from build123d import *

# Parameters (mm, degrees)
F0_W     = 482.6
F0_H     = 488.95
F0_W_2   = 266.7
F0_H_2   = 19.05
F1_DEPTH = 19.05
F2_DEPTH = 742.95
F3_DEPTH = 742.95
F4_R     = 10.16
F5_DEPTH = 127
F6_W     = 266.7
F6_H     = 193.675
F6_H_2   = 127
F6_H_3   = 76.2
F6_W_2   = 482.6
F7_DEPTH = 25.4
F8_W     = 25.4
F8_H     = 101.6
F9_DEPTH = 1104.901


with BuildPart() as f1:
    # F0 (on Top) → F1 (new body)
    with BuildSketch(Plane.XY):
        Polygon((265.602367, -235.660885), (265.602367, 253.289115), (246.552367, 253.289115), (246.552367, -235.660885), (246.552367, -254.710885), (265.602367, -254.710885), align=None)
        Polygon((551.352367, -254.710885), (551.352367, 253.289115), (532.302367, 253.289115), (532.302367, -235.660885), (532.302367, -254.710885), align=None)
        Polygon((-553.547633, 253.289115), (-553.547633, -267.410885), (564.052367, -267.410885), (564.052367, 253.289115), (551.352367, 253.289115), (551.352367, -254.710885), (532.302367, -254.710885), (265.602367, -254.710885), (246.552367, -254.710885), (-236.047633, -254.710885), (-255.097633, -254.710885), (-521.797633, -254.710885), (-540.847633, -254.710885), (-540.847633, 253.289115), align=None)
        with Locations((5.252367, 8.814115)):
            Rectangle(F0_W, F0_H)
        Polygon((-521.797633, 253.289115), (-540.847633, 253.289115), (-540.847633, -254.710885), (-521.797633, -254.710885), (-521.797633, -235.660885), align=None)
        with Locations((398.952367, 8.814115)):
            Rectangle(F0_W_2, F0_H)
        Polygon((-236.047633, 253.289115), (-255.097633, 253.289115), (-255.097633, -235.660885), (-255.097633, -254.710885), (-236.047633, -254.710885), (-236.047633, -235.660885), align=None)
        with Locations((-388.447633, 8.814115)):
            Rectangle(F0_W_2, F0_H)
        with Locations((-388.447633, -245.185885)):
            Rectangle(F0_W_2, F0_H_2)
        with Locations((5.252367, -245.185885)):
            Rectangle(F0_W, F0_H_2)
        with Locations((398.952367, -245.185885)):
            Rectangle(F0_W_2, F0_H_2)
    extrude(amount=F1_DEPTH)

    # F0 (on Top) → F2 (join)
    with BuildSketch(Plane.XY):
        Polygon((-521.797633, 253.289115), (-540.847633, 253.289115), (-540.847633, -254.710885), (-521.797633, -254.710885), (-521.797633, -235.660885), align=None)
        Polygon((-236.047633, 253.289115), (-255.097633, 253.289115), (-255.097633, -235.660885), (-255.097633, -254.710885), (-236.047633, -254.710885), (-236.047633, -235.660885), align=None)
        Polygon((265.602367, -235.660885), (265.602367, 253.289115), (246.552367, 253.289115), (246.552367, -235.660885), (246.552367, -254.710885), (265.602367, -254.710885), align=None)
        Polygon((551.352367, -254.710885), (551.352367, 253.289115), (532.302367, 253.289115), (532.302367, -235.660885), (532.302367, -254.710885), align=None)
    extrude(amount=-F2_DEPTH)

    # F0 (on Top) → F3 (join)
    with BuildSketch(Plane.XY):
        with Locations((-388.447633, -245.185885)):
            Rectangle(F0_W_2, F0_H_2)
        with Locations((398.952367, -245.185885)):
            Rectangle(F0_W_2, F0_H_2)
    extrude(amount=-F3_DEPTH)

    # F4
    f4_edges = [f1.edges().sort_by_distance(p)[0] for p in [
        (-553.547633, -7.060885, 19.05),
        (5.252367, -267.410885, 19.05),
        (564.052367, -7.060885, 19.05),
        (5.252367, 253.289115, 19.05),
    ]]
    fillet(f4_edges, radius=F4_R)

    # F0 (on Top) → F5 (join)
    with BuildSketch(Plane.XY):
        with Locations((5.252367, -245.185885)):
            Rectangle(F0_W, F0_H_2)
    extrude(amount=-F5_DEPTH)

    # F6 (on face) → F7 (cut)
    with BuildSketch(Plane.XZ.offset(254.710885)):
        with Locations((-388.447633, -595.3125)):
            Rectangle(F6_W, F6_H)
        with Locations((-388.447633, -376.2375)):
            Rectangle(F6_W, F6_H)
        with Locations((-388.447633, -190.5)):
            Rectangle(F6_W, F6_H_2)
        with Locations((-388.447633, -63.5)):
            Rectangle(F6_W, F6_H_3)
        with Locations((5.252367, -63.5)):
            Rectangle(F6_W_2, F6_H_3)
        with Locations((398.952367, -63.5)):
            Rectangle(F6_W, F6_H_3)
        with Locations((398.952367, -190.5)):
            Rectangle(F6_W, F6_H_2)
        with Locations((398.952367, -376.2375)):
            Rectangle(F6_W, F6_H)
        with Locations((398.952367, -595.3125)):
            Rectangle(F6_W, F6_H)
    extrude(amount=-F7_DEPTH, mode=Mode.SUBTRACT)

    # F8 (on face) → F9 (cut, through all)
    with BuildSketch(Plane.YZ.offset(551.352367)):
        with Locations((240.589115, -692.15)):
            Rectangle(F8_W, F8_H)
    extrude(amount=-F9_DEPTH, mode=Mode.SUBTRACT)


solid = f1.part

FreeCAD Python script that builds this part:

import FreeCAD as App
import Part
import Sketcher

V = App.Vector
Q = App.Units.Quantity


def edges_at(feature, points):
    """Names of the edges that pass closest to the given points."""
    edges = feature.Shape.Edges
    near = lambda p: min(range(len(edges)), key=lambda i: edges[i].distToShape(Part.Vertex(*p))[0])
    return sorted({f"Edge{near(p) + 1}" for p in points})


def add_polygon(sketch, points):
    """Adds a closed chain of lines whose ends are joined by coincident constraints."""
    first, n = sketch.GeometryCount, len(points)
    for a, b in zip(points, points[1:] + points[:1]):
        sketch.addGeometry(Part.LineSegment(App.Vector(*a, 0), App.Vector(*b, 0)), False)
    for i in range(n):
        sketch.addConstraint(Sketcher.Constraint("Coincident", first + i, 2, first + (i + 1) % n, 1))

doc = App.newDocument("Part")
body = doc.addObject("PartDesign::Body", "Body")

# Sketch on XY plane
sketch1 = body.newObject("Sketcher::SketchObject", "Sketch")
sketch1.AttachmentSupport = (doc.getObject("XY_Plane"), [""])
sketch1.MapMode = "FlatFace"
add_polygon(sketch1, [(-554, 253), (-554, -267), (564, -267), (564, 253)])  # lines 0-3
sketch1.addConstraint(Sketcher.Constraint("Vertical", 0))
sketch1.addConstraint(Sketcher.Constraint("Horizontal", 1))
sketch1.addConstraint(Sketcher.Constraint("Vertical", 2))
sketch1.addConstraint(Sketcher.Constraint("Horizontal", 3))
sketch1.addConstraint(Sketcher.Constraint("DistanceX", 1, 1, 1, 2, Q("44 in")))
sketch1.addConstraint(Sketcher.Constraint("DistanceY", 0, 2, 0, 1, Q("20.5 in")))
sketch1.addConstraint(Sketcher.Constraint("DistanceX", 0, 2, -1, 1, Q("553.547633 mm")))
sketch1.addConstraint(Sketcher.Constraint("DistanceY", 0, 2, -1, 1, Q("267.410885 mm")))
pad1 = body.newObject("PartDesign::Pad", "Pad")
pad1.Profile = sketch1
pad1.Length = Q("0.75 in")

# Sketch on XY plane
sketch2 = body.newObject("Sketcher::SketchObject", "Sketch001")
sketch2.AttachmentSupport = (doc.getObject("XY_Plane"), [""])
sketch2.MapMode = "FlatFace"
add_polygon(sketch2, [(-522, 253), (-541, 253), (-541, -255), (-522, -255)])  # lines 0-3
add_polygon(sketch2, [(-236, 253), (-255, 253), (-255, -255), (-236, -255)])  # lines 4-7
add_polygon(sketch2, [(266, 253), (247, 253), (247, -255), (266, -255)])  # lines 8-11
add_polygon(sketch2, [(551, -255), (551, 253), (532, 253), (532, -255)])  # lines 12-15
sketch2.addConstraint(Sketcher.Constraint("Horizontal", 0))
sketch2.addConstraint(Sketcher.Constraint("Vertical", 1))
sketch2.addConstraint(Sketcher.Constraint("Horizontal", 2))
sketch2.addConstraint(Sketcher.Constraint("Vertical", 3))
sketch2.addConstraint(Sketcher.Constraint("Horizontal", 4))
sketch2.addConstraint(Sketcher.Constraint("Vertical", 5))
sketch2.addConstraint(Sketcher.Constraint("Horizontal", 6))
sketch2.addConstraint(Sketcher.Constraint("Vertical", 7))
sketch2.addConstraint(Sketcher.Constraint("Horizontal", 8))
sketch2.addConstraint(Sketcher.Constraint("Vertical", 9))
sketch2.addConstraint(Sketcher.Constraint("Horizontal", 10))
sketch2.addConstraint(Sketcher.Constraint("Vertical", 11))
sketch2.addConstraint(Sketcher.Constraint("Vertical", 12))
sketch2.addConstraint(Sketcher.Constraint("Horizontal", 13))
sketch2.addConstraint(Sketcher.Constraint("Vertical", 14))
sketch2.addConstraint(Sketcher.Constraint("Horizontal", 15))
sketch2.addConstraint(Sketcher.Constraint("Horizontal", 3, 2, 4, 2))
sketch2.addConstraint(Sketcher.Constraint("Horizontal", 2, 2, 5, 2))
sketch2.addConstraint(Sketcher.Constraint("Horizontal", 7, 2, 8, 2))
sketch2.addConstraint(Sketcher.Constraint("Horizontal", 6, 2, 9, 2))
sketch2.addConstraint(Sketcher.Constraint("Horizontal", 11, 2, 12, 2))
sketch2.addConstraint(Sketcher.Constraint("Horizontal", 10, 2, 14, 2))
sketch2.addConstraint(Sketcher.Constraint("Equal", 2, 4))
sketch2.addConstraint(Sketcher.Constraint("Equal", 6, 8))
sketch2.addConstraint(Sketcher.Constraint("Equal", 10, 13))
sketch2.addConstraint(Sketcher.Constraint("DistanceY", 1, 2, 1, 1, Q("20 in")))
sketch2.addConstraint(Sketcher.Constraint("DistanceX", 1, 2, 6, 2, Q("12 in")))
sketch2.addConstraint(Sketcher.Constraint("DistanceX", 7, 2, 8, 2, Q("19 in")))
sketch2.addConstraint(Sketcher.Constraint("DistanceX", 8, 2, 12, 2, Q("12 in")))
sketch2.addConstraint(Sketcher.Constraint("DistanceX", 0, 2, 0, 1, Q("0.75 in")))
sketch2.addConstraint(Sketcher.Constraint("DistanceX", 0, 2, -1, 1, Q("540.847633 mm")))
sketch2.addConstraint(Sketcher.Constraint("DistanceY", -1, 1, 0, 2, Q("253.289115 mm")))
pad2 = body.newObject("PartDesign::Pad", "Pad001")
pad2.Profile = sketch2
pad2.Length = Q("29.25 in")
pad2.Reversed = True

# Sketch on XY plane
sketch3 = body.newObject("Sketcher::SketchObject", "Sketch002")
sketch3.AttachmentSupport = (doc.getObject("XY_Plane"), [""])
sketch3.MapMode = "FlatFace"
add_polygon(sketch3, [(-522, -236), (-522, -255), (-255, -255), (-255, -236)])  # lines 0-3
add_polygon(sketch3, [(266, -236), (266, -255), (532, -255), (532, -236)])  # lines 4-7
sketch3.addConstraint(Sketcher.Constraint("Vertical", 0))
sketch3.addConstraint(Sketcher.Constraint("Horizontal", 1))
sketch3.addConstraint(Sketcher.Constraint("Vertical", 2))
sketch3.addConstraint(Sketcher.Constraint("Horizontal", 3))
sketch3.addConstraint(Sketcher.Constraint("Vertical", 4))
sketch3.addConstraint(Sketcher.Constraint("Horizontal", 5))
sketch3.addConstraint(Sketcher.Constraint("Vertical", 6))
sketch3.addConstraint(Sketcher.Constraint("Horizontal", 7))
sketch3.addConstraint(Sketcher.Constraint("Horizontal", 1, 2, 4, 2))
sketch3.addConstraint(Sketcher.Constraint("Horizontal", 3, 2, 6, 2))
sketch3.addConstraint(Sketcher.Constraint("Equal", 3, 5))
sketch3.addConstraint(Sketcher.Constraint("DistanceX", 1, 1, 1, 2, Q("10.5 in")))
sketch3.addConstraint(Sketcher.Constraint("DistanceX", 0, 2, 4, 2, Q("31 in")))
sketch3.addConstraint(Sketcher.Constraint("DistanceY", 0, 2, 0, 1, Q("0.75 in")))
sketch3.addConstraint(Sketcher.Constraint("DistanceX", 0, 2, -1, 1, Q("521.797633 mm")))
sketch3.addConstraint(Sketcher.Constraint("DistanceY", 0, 2, -1, 1, Q("254.710885 mm")))
pad3 = body.newObject("PartDesign::Pad", "Pad002")
pad3.Profile = sketch3
pad3.Length = Q("29.25 in")
pad3.Reversed = True
doc.recompute()

fillet = body.newObject("PartDesign::Fillet", "Fillet")
fillet.Base = (pad3, edges_at(pad3, [
    (-553.548, -7.061, 19.05),
    (5.252, -267.411, 19.05),
    (564.052, -7.061, 19.05),
    (5.252, 253.289, 19.05),
]))
fillet.Radius = Q("0.4 in")

# Sketch on XY plane
sketch4 = body.newObject("Sketcher::SketchObject", "Sketch003")
sketch4.AttachmentSupport = (doc.getObject("XY_Plane"), [""])
sketch4.MapMode = "FlatFace"
add_polygon(sketch4, [(-236, -236), (-236, -255), (247, -255), (247, -236)])  # lines 0-3
sketch4.addConstraint(Sketcher.Constraint("Vertical", 0))
sketch4.addConstraint(Sketcher.Constraint("Horizontal", 1))
sketch4.addConstraint(Sketcher.Constraint("Vertical", 2))
sketch4.addConstraint(Sketcher.Constraint("Horizontal", 3))
sketch4.addConstraint(Sketcher.Constraint("DistanceX", 1, 1, 1, 2, Q("19 in")))
sketch4.addConstraint(Sketcher.Constraint("DistanceY", 0, 2, 0, 1, Q("0.75 in")))
sketch4.addConstraint(Sketcher.Constraint("DistanceX", 0, 2, -1, 1, Q("236.047633 mm")))
sketch4.addConstraint(Sketcher.Constraint("DistanceY", 0, 2, -1, 1, Q("254.710885 mm")))
pad4 = body.newObject("PartDesign::Pad", "Pad003")
pad4.Profile = sketch4
pad4.Length = Q("5 in")
pad4.Reversed = True

# Sketch on XZ plane
sketch5 = body.newObject("Sketcher::SketchObject", "Sketch004")
sketch5.AttachmentSupport = (doc.getObject("XZ_Plane"), [""])
sketch5.MapMode = "FlatFace"
sketch5.AttachmentOffset = App.Placement(V(0, 0, 254.710885), App.Rotation())
add_polygon(sketch5, [(-522, -498), (-522, -692), (-255, -692), (-255, -498)])  # lines 0-3
add_polygon(sketch5, [(-522, -279), (-522, -473), (-255, -473), (-255, -279)])  # lines 4-7
add_polygon(sketch5, [(-522, -127), (-522, -254), (-255, -254), (-255, -127)])  # lines 8-11
add_polygon(sketch5, [(-522, -25), (-522, -102), (-255, -102), (-255, -25)])  # lines 12-15
add_polygon(sketch5, [(-236, -25), (-236, -102), (247, -102), (247, -25)])  # lines 16-19
add_polygon(sketch5, [(266, -25), (266, -102), (532, -102), (532, -25)])  # lines 20-23
add_polygon(sketch5, [(266, -127), (266, -254), (532, -254), (532, -127)])  # lines 24-27
add_polygon(sketch5, [(266, -279), (266, -473), (532, -473), (532, -279)])  # lines 28-31
add_polygon(sketch5, [(266, -498), (266, -692), (532, -692), (532, -498)])  # lines 32-35
sketch5.addConstraint(Sketcher.Constraint("Vertical", 0))
sketch5.addConstraint(Sketcher.Constraint("Horizontal", 1))
sketch5.addConstraint(Sketcher.Constraint("Vertical", 2))
sketch5.addConstraint(Sketcher.Constraint("Horizontal", 3))
sketch5.addConstraint(Sketcher.Constraint("Vertical", 4))
sketch5.addConstraint(Sketcher.Constraint("Horizontal", 5))
sketch5.addConstraint(Sketcher.Constraint("Vertical", 6))
sketch5.addConstraint(Sketcher.Constraint("Horizontal", 7))
sketch5.addConstraint(Sketcher.Constraint("Vertical", 8))
sketch5.addConstraint(Sketcher.Constraint("Horizontal", 9))
sketch5.addConstraint(Sketcher.Constraint("Vertical", 10))
sketch5.addConstraint(Sketcher.Constraint("Horizontal", 11))
sketch5.addConstraint(Sketcher.Constraint("Vertical", 12))
sketch5.addConstraint(Sketcher.Constraint("Horizontal", 13))
sketch5.addConstraint(Sketcher.Constraint("Vertical", 14))
sketch5.addConstraint(Sketcher.Constraint("Horizontal", 15))
sketch5.addConstraint(Sketcher.Constraint("Vertical", 16))
sketch5.addConstraint(Sketcher.Constraint("Horizontal", 17))
sketch5.addConstraint(Sketcher.Constraint("Vertical", 18))
sketch5.addConstraint(Sketcher.Constraint("Horizontal", 19))
sketch5.addConstraint(Sketcher.Constraint("Vertical", 20))
sketch5.addConstraint(Sketcher.Constraint("Horizontal", 21))
sketch5.addConstraint(Sketcher.Constraint("Vertical", 22))
sketch5.addConstraint(Sketcher.Constraint("Horizontal", 23))
sketch5.addConstraint(Sketcher.Constraint("Vertical", 24))
sketch5.addConstraint(Sketcher.Constraint("Horizontal", 25))
sketch5.addConstraint(Sketcher.Constraint("Vertical", 26))
sketch5.addConstraint(Sketcher.Constraint("Horizontal", 27))
sketch5.addConstraint(Sketcher.Constraint("Vertical", 28))
sketch5.addConstraint(Sketcher.Constraint("Horizontal", 29))
sketch5.addConstraint(Sketcher.Constraint("Vertical", 30))
sketch5.addConstraint(Sketcher.Constraint("Horizontal", 31))
sketch5.addConstraint(Sketcher.Constraint("Vertical", 32))
sketch5.addConstraint(Sketcher.Constraint("Horizontal", 33))
sketch5.addConstraint(Sketcher.Constraint("Vertical", 34))
sketch5.addConstraint(Sketcher.Constraint("Horizontal", 35))
sketch5.addConstraint(Sketcher.Constraint("Horizontal", 13, 2, 16, 2))
sketch5.addConstraint(Sketcher.Constraint("Horizontal", 15, 2, 18, 2))
sketch5.addConstraint(Sketcher.Constraint("Horizontal", 17, 2, 20, 2))
sketch5.addConstraint(Sketcher.Constraint("Horizontal", 19, 2, 22, 2))
sketch5.addConstraint(Sketcher.Constraint("Horizontal", 9, 2, 24, 2))
sketch5.addConstraint(Sketcher.Constraint("Horizontal", 11, 2, 26, 2))
sketch5.addConstraint(Sketcher.Constraint("Horizontal", 5, 2, 28, 2))
sketch5.addConstraint(Sketcher.Constraint("Horizontal", 7, 2, 30, 2))
sketch5.addConstraint(Sketcher.Constraint("Horizontal", 1, 2, 32, 2))
sketch5.addConstraint(Sketcher.Constraint("Horizontal", 3, 2, 34, 2))
sketch5.addConstraint(Sketcher.Constraint("Vertical", 3, 2, 4, 2))
sketch5.addConstraint(Sketcher.Constraint("Vertical", 2, 2, 5, 2))
sketch5.addConstraint(Sketcher.Constraint("Vertical", 7, 2, 8, 2))
sketch5.addConstraint(Sketcher.Constraint("Vertical", 6, 2, 9, 2))
sketch5.addConstraint(Sketcher.Constraint("Vertical", 11, 2, 12, 2))
sketch5.addConstraint(Sketcher.Constraint("Vertical", 10, 2, 13, 2))
sketch5.addConstraint(Sketcher.Constraint("Vertical", 23, 2, 24, 2))
sketch5.addConstraint(Sketcher.Constraint("Vertical", 22, 2, 25, 2))
sketch5.addConstraint(Sketcher.Constraint("Vertical", 27, 2, 28, 2))
sketch5.addConstraint(Sketcher.Constraint("Vertical", 26, 2, 29, 2))
sketch5.addConstraint(Sketcher.Constraint("Vertical", 31, 2, 32, 2))
sketch5.addConstraint(Sketcher.Constraint("Vertical", 30, 2, 33, 2))
sketch5.addConstraint(Sketcher.Constraint("Equal", 15, 21))
sketch5.addConstraint(Sketcher.Constraint("Equal", 2, 4))
sketch5.addConstraint(Sketcher.Constraint("DistanceX", 17, 1, 17, 2, Q("19 in")))
sketch5.addConstraint(Sketcher.Constraint("DistanceY", 8, 2, 8, 1, Q("5 in")))
sketch5.addConstraint(Sketcher.Constraint("DistanceY", 12, 2, 12, 1, Q("3 in")))
sketch5.addConstraint(Sketcher.Constraint("DistanceX", 1, 1, 1, 2, Q("10.5 in")))
sketch5.addConstraint(Sketcher.Constraint("DistanceY", 6, 2, -1, 1, Q("11 in")))
sketch5.addConstraint(Sketcher.Constraint("DistanceY", 8, 2, -1, 1, Q("10 in")))
sketch5.addConstraint(Sketcher.Constraint("DistanceY", 12, 2, -1, 1, Q("4 in")))
sketch5.addConstraint(Sketcher.Constraint("DistanceY", 3, 2, 4, 2, Q("1 in")))
sketch5.addConstraint(Sketcher.Constraint("DistanceX", 13, 2, 20, 2, Q("20.5 in")))
sketch5.addConstraint(Sketcher.Constraint("DistanceY", 0, 2, 0, 1, Q("7.625 in")))
sketch5.addConstraint(Sketcher.Constraint("DistanceX", 13, 2, 16, 2, Q("0.75 in")))
sketch5.addConstraint(Sketcher.Constraint("DistanceX", 0, 2, -1, 1, Q("521.797633 mm")))
pocket1 = body.newObject("PartDesign::Pocket", "Pocket")
pocket1.Profile = sketch5
pocket1.Length = Q("1 in")

# Sketch on YZ plane
sketch6 = body.newObject("Sketcher::SketchObject", "Sketch005")
sketch6.AttachmentSupport = (doc.getObject("YZ_Plane"), [""])
sketch6.MapMode = "FlatFace"
sketch6.AttachmentOffset = App.Placement(V(0, 0, 551.352367), App.Rotation())
add_polygon(sketch6, [(228, -641), (228, -743), (253, -743), (253, -641)])  # lines 0-3
sketch6.addConstraint(Sketcher.Constraint("Vertical", 0))
sketch6.addConstraint(Sketcher.Constraint("Horizontal", 1))
sketch6.addConstraint(Sketcher.Constraint("Vertical", 2))
sketch6.addConstraint(Sketcher.Constraint("Horizontal", 3))
sketch6.addConstraint(Sketcher.Constraint("DistanceX", 1, 1, 1, 2, Q("1 in")))
sketch6.addConstraint(Sketcher.Constraint("DistanceY", 0, 2, 0, 1, Q("4 in")))
sketch6.addConstraint(Sketcher.Constraint("DistanceY", 0, 2, -1, 1, Q("29.25 in")))
sketch6.addConstraint(Sketcher.Constraint("DistanceX", -1, 1, 0, 2, Q("227.889115 mm")))
pocket2 = body.newObject("PartDesign::Pocket", "Pocket001")
pocket2.Profile = sketch6
pocket2.Type = "ThroughAll"

doc.recompute()
